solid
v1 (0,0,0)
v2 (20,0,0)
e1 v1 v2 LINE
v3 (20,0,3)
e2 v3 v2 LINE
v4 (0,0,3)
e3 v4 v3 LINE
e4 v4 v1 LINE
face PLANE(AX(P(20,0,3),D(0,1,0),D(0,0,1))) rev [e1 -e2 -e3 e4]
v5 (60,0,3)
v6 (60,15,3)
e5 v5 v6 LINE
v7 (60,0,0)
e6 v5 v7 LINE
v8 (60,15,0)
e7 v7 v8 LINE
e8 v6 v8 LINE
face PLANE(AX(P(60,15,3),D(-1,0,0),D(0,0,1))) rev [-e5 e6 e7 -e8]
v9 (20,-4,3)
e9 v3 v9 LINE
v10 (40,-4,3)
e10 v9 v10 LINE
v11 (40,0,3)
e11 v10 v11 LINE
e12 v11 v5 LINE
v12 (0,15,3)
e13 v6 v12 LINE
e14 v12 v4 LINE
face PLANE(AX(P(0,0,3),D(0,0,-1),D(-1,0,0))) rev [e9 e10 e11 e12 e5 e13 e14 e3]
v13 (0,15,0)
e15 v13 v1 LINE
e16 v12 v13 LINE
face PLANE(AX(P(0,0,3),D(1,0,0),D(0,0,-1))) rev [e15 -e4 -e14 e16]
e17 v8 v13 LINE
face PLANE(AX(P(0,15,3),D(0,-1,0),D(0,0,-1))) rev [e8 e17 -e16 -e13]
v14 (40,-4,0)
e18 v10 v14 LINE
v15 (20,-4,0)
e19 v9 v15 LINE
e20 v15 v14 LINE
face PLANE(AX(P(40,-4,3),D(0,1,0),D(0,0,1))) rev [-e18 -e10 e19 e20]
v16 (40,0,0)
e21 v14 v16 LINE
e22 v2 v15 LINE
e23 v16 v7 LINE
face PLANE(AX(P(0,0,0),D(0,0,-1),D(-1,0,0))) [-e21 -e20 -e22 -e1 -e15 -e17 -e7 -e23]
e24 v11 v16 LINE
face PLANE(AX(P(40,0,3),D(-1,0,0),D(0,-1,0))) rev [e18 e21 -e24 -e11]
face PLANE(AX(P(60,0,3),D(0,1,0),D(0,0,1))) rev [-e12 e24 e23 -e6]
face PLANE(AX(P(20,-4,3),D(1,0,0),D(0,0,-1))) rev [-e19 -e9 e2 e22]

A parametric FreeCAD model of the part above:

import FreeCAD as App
import Part
import Sketcher
Q = App.Units.Quantity

doc = App.newDocument("Part")
body = doc.addObject("PartDesign::Body", "Body")

sketch1 = body.newObject("Sketcher::SketchObject", "Sketch")
sketch1.AttachmentSupport = (doc.getObject("XY_Plane"), [""])
sketch1.MapMode = "FlatFace"
sketch1.addGeometry(Part.LineSegment(App.Vector(0, 15, 0), App.Vector(0, 0, 0)), False)
sketch1.addGeometry(Part.LineSegment(App.Vector(0, 0, 0), App.Vector(20, 0, 0)), False)
sketch1.addGeometry(Part.LineSegment(App.Vector(20, 0, 0), App.Vector(20, -4, 0)), False)
sketch1.addGeometry(Part.LineSegment(App.Vector(20, -4, 0), App.Vector(40, -4, 0)), False)
sketch1.addGeometry(Part.LineSegment(App.Vector(40, -4, 0), App.Vector(40, 0, 0)), False)
sketch1.addGeometry(Part.LineSegment(App.Vector(40, 0, 0), App.Vector(60, 0, 0)), False)
sketch1.addGeometry(Part.LineSegment(App.Vector(60, 0, 0), App.Vector(60, 15, 0)), False)
sketch1.addGeometry(Part.LineSegment(App.Vector(60, 15, 0), App.Vector(0, 15, 0)), False)
sketch1.addConstraint(Sketcher.Constraint("Coincident", 0, 2, 1, 1))
sketch1.addConstraint(Sketcher.Constraint("Coincident", 1, 2, 2, 1))
sketch1.addConstraint(Sketcher.Constraint("Coincident", 2, 2, 3, 1))
sketch1.addConstraint(Sketcher.Constraint("Coincident", 3, 2, 4, 1))
sketch1.addConstraint(Sketcher.Constraint("Coincident", 4, 2, 5, 1))
sketch1.addConstraint(Sketcher.Constraint("Coincident", 5, 2, 6, 1))
sketch1.addConstraint(Sketcher.Constraint("Coincident", 6, 2, 7, 1))
sketch1.addConstraint(Sketcher.Constraint("Coincident", 7, 2, 0, 1))
sketch1.addConstraint(Sketcher.Constraint("Vertical", 0))
sketch1.addConstraint(Sketcher.Constraint("Horizontal", 1))
sketch1.addConstraint(Sketcher.Constraint("Vertical", 2))
sketch1.addConstraint(Sketcher.Constraint("Horizontal", 3))
sketch1.addConstraint(Sketcher.Constraint("Vertical", 4))
sketch1.addConstraint(Sketcher.Constraint("Horizontal", 5))
sketch1.addConstraint(Sketcher.Constraint("Vertical", 6))
sketch1.addConstraint(Sketcher.Constraint("Horizontal", 7))
sketch1.addConstraint(Sketcher.Constraint("Coincident", 0, 2, -1, 1))
sketch1.addConstraint(Sketcher.Constraint("PointOnObject", 4, 2, -1))
sketch1.addConstraint(Sketcher.Constraint("Equal", 1, 3))
sketch1.addConstraint(Sketcher.Constraint("Equal", 3, 5))
sketch1.addConstraint(Sketcher.Constraint("DistanceX", 1, 1, 1, 2, Q("20 mm")))
sketch1.addConstraint(Sketcher.Constraint("DistanceY", 0, 2, 0, 1, Q("15 mm")))
sketch1.addConstraint(Sketcher.Constraint("DistanceY", 2, 2, 2, 1, Q("4 mm")))
pad1 = body.newObject("PartDesign::Pad", "Pad")
pad1.Profile = sketch1
pad1.Length = 3

doc.recompute()
